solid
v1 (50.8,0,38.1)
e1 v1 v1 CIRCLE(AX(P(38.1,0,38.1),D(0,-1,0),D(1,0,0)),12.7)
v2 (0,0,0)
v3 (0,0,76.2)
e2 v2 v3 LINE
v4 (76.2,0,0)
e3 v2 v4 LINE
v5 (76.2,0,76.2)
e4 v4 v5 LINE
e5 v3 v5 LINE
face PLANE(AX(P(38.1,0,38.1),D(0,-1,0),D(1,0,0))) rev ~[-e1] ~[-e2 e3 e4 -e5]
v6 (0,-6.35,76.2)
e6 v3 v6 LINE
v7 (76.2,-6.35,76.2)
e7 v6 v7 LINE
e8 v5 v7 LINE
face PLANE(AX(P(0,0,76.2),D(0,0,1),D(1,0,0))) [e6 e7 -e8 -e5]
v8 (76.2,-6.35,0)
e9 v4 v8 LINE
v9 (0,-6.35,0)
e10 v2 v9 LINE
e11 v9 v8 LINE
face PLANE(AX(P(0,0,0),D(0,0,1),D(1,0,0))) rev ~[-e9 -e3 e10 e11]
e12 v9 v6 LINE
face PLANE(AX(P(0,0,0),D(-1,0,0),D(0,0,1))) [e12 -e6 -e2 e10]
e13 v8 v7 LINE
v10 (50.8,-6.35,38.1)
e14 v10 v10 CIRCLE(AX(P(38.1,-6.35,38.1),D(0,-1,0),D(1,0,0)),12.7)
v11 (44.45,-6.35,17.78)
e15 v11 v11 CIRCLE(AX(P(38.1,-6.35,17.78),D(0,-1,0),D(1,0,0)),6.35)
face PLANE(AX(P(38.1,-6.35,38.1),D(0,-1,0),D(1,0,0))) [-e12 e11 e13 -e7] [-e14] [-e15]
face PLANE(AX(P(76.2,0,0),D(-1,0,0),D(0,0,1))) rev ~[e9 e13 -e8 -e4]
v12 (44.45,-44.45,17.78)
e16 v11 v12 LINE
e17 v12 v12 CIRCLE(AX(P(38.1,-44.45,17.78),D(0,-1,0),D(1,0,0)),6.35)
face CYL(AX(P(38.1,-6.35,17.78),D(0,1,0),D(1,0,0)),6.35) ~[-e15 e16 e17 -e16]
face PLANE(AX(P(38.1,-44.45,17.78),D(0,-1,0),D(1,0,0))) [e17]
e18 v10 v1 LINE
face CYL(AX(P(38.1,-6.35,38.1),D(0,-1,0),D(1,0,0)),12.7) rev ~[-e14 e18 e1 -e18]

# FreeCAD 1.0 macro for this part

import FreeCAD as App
import Part
import Sketcher

V = App.Vector
Q = App.Units.Quantity

doc = App.newDocument("Part")
body = doc.addObject("PartDesign::Body", "Body")

sketch1 = body.newObject("Sketcher::SketchObject", "Sketch")
sketch1.AttachmentSupport = (doc.getObject("XZ_Plane"), [""])
sketch1.MapMode = "FlatFace"
sketch1.addGeometry(Part.LineSegment(V(0, 76, 0), V(0, 0, 0)), False)
sketch1.addGeometry(Part.LineSegment(V(0, 0, 0), V(76, 0, 0)), False)
sketch1.addGeometry(Part.LineSegment(V(76, 0, 0), V(76, 76, 0)), False)
sketch1.addGeometry(Part.LineSegment(V(76, 76, 0), V(0, 76, 0)), False)
sketch1.addConstraint(Sketcher.Constraint("Coincident", 0, 2, 1, 1))
sketch1.addConstraint(Sketcher.Constraint("Coincident", 1, 2, 2, 1))
sketch1.addConstraint(Sketcher.Constraint("Coincident", 2, 2, 3, 1))
sketch1.addConstraint(Sketcher.Constraint("Coincident", 3, 2, 0, 1))
sketch1.addConstraint(Sketcher.Constraint("Vertical", 0))
sketch1.addConstraint(Sketcher.Constraint("Horizontal", 1))
sketch1.addConstraint(Sketcher.Constraint("Vertical", 2))
sketch1.addConstraint(Sketcher.Constraint("Horizontal", 3))
sketch1.addConstraint(Sketcher.Constraint("Coincident", 0, 2, -1, 1))
sketch1.addConstraint(Sketcher.Constraint("Equal", 3, 0))
sketch1.addConstraint(Sketcher.Constraint("DistanceX", 1, 1, 1, 2, Q("3 in")))
pad1 = body.newObject("PartDesign::Pad", "Pad")
pad1.Profile = sketch1
pad1.Length = Q("0.25 in")

sketch2 = body.newObject("Sketcher::SketchObject", "Sketch001")
sketch2.AttachmentSupport = (doc.getObject("XZ_Plane"), [""])
sketch2.MapMode = "FlatFace"
sketch2.AttachmentOffset = App.Placement(V(0, 0, 0.25 * 25.4), App.Rotation())
sketch2.addGeometry(Part.Circle(V(38, 38, 0), V(0, 0, 1), 13), False)
sketch2.addConstraint(Sketcher.Constraint("Diameter", 0, Q("1 in")))
sketch2.addConstraint(Sketcher.Constraint("DistanceX", -1, 1, 0, 3, Q("1.5 in")))
sketch2.addConstraint(Sketcher.Constraint("DistanceY", -1, 1, 0, 3, Q("1.5 in")))
pocket1 = body.newObject("PartDesign::Pocket", "Pocket")
pocket1.Profile = sketch2
pocket1.Length = Q("1 in")

sketch3 = body.newObject("Sketcher::SketchObject", "Sketch002")
sketch3.AttachmentSupport = (doc.getObject("XZ_Plane"), [""])
sketch3.MapMode = "FlatFace"
sketch3.AttachmentOffset = App.Placement(V(0, 0, 0.25 * 25.4), App.Rotation())
sketch3.addGeometry(Part.Circle(V(38, 18, 0), V(0, 0, 1), 6), False)
sketch3.addConstraint(Sketcher.Constraint("Diameter", 0, Q("0.5 in")))
sketch3.addConstraint(Sketcher.Constraint("DistanceX", -1, 1, 0, 3, Q("1.5 in")))
sketch3.addConstraint(Sketcher.Constraint("DistanceY", -1, 1, 0, 3, Q("0.7 in")))
pad2 = body.newObject("PartDesign::Pad", "Pad001")
pad2.Profile = sketch3
pad2.Length = Q("1.5 in")

doc.recompute()
